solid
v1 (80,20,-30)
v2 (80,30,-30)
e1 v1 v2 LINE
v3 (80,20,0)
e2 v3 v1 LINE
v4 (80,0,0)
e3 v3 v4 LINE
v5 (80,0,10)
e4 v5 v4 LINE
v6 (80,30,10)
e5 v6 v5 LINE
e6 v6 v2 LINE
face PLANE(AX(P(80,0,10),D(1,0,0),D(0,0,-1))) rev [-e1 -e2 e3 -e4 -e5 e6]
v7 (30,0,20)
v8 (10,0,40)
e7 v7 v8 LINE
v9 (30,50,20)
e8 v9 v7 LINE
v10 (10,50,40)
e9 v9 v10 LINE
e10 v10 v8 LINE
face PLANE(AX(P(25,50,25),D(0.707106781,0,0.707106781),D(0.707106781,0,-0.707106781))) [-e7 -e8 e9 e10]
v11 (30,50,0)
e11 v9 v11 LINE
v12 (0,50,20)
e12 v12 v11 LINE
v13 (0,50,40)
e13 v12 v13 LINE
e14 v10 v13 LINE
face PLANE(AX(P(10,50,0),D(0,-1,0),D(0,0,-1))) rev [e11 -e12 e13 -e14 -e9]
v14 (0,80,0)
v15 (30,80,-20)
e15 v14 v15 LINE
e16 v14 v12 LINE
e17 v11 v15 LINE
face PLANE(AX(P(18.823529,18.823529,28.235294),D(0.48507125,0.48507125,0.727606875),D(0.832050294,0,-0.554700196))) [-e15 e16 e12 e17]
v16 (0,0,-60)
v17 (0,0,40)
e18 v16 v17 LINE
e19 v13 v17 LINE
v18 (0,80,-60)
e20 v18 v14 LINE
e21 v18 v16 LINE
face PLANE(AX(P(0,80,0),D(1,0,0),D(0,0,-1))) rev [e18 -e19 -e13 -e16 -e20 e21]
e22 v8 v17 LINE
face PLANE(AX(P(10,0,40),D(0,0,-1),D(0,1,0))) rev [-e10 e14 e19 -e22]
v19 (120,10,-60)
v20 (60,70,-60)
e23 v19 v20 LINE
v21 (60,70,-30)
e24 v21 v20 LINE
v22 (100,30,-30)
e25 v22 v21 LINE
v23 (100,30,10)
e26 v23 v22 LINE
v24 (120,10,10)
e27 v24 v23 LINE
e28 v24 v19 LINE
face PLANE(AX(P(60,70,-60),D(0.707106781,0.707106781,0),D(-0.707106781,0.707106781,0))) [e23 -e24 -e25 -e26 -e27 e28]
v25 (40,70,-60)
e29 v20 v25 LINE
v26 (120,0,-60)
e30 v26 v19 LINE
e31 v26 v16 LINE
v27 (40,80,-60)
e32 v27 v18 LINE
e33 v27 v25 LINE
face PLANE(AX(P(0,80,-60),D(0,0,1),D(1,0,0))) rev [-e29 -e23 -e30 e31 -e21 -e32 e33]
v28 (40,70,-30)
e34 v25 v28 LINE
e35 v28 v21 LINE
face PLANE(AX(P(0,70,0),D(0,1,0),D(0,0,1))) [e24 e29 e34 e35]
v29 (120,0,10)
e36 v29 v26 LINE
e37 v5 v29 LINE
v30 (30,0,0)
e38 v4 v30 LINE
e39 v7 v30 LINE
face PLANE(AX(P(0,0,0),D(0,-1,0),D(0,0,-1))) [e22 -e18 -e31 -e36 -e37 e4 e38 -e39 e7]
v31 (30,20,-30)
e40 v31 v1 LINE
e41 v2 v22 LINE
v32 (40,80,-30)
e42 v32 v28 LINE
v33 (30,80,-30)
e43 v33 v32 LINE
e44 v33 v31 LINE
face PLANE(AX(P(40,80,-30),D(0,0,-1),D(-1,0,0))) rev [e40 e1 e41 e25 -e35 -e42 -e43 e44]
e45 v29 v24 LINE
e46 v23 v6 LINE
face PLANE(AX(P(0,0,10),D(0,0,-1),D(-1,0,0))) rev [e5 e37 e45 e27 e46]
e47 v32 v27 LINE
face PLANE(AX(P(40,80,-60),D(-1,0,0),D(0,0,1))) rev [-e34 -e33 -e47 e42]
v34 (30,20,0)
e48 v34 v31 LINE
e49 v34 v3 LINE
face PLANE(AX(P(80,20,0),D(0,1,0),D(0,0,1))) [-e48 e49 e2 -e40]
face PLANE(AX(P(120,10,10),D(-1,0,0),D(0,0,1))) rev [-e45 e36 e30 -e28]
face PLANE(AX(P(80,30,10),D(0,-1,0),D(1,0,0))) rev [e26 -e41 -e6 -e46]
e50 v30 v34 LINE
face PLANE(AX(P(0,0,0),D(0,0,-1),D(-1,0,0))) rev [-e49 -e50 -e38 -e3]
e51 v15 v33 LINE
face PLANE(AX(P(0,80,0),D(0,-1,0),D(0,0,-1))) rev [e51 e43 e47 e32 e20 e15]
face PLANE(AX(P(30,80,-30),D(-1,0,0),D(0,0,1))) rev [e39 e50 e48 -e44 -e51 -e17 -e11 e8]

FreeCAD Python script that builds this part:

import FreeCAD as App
import Part
import Sketcher
Q = App.Units.Quantity


def add_polygon(sketch, points):
    """Adds a closed chain of lines whose ends are joined by coincident constraints."""
    first, n = sketch.GeometryCount, len(points)
    for a, b in zip(points, points[1:] + points[:1]):
        sketch.addGeometry(Part.LineSegment(App.Vector(*a, 0), App.Vector(*b, 0)), False)
    for i in range(n):
        sketch.addConstraint(Sketcher.Constraint("Coincident", first + i, 2, first + (i + 1) % n, 1))

doc = App.newDocument("Part")
body = doc.addObject("PartDesign::Body", "Body")

sketch1 = body.newObject("Sketcher::SketchObject", "Sketch")
sketch1.AttachmentSupport = (doc.getObject("XZ_Plane"), [""])
sketch1.MapMode = "FlatFace"
add_polygon(sketch1, [(0, -60), (0, 0), (30, -20), (30, -30), (40, -30), (40, -60)])
sketch1.addConstraint([
    Sketcher.Constraint("Vertical", 0),
    Sketcher.Constraint("Vertical", 2),
    Sketcher.Constraint("Horizontal", 3),
    Sketcher.Constraint("Vertical", 4),
    Sketcher.Constraint("Horizontal", 5),
    Sketcher.Constraint("Coincident", 0, 2, -1, 1),
    Sketcher.Constraint("Equal", 3, 2),
    Sketcher.Constraint("DistanceX", 3, 1, 3, 2, 10.0),
    Sketcher.Constraint("DistanceX", 5, 2, 5, 1, 40.0),
    Sketcher.Constraint("DistanceY", 0, 1, 0, 2, 60.0),
    Sketcher.Constraint("DistanceY", 4, 2, 4, 1, 30.0),
])
pad1 = body.newObject("PartDesign::Pad", "Pad")
pad1.Profile = sketch1
pad1.Length = 80
pad1.Reversed = True

sketch2 = body.newObject("Sketcher::SketchObject", "Sketch001")
sketch2.AttachmentSupport = (doc.getObject("YZ_Plane"), [""])
sketch2.MapMode = "FlatFace"
add_polygon(sketch2, [(80, -60), (0, -60), (0, 40), (50, 40), (50, 20), (80, 0)])
sketch2.addConstraint([
    Sketcher.Constraint("Horizontal", 0),
    Sketcher.Constraint("Vertical", 1),
    Sketcher.Constraint("Horizontal", 2),
    Sketcher.Constraint("Vertical", 3),
    Sketcher.Constraint("Vertical", 5),
    Sketcher.Constraint("PointOnObject", 0, 2, -2),
    Sketcher.Constraint("PointOnObject", 4, 2, -1),
    Sketcher.Constraint("DistanceX", 0, 2, 0, 1, 80.0),
    Sketcher.Constraint("DistanceX", 2, 1, 2, 2, 50.0),
    Sketcher.Constraint("DistanceY", 1, 1, 1, 2, 100.0),
    Sketcher.Constraint("DistanceY", 3, 2, 3, 1, 20.0),
    Sketcher.Constraint("DistanceY", 5, 2, 5, 1, 60.0),
])
pad2 = body.newObject("PartDesign::Pad", "Pad001")
pad2.Profile = sketch2
pad2.Length = 10

sketch3 = body.newObject("Sketcher::SketchObject", "Sketch002")
sketch3.Placement = App.Placement(App.Vector(18.823529, 18.823529, 28.235294), App.Rotation(App.Vector(0.874474632, -0.269069118, -0.403603676), App.Vector(0, 0.832050294, -0.554700196), App.Vector(0.48507125, 0.48507125, 0.727606875), "ZXY"))
add_polygon(sketch3, [(-22, 31), (13, 42), (13, 78), (-22, 67)])
sketch3.addConstraint([
    Sketcher.Constraint("Vertical", 1),
    Sketcher.Constraint("Vertical", 3),
    Sketcher.Constraint("Parallel", 0, 2),
    Sketcher.Constraint("DistanceY", 1, 1, 1, 2, 36.055513),
    Sketcher.Constraint("DistanceX", 2, 2, -1, 1, 21.525529),
    Sketcher.Constraint("DistanceY", -1, 1, 3, 2, 30.508511),
    Sketcher.Constraint("DistanceY", 0, 2, 2, 2, 24.961509),
    Sketcher.Constraint("Distance", 0, 36.055513),
])
pocket1 = body.newObject("PartDesign::Pocket", "Pocket")
pocket1.Profile = sketch3
pocket1.Length = 149
pocket1.Reversed = True

sketch4 = body.newObject("Sketcher::SketchObject", "Sketch003")
sketch4.Placement = App.Placement(App.Vector(18.823529, 18.823529, 28.235294), App.Rotation(App.Vector(0.874474632, -0.269069118, -0.403603676), App.Vector(0, 0.832050294, -0.554700196), App.Vector(0.48507125, 0.48507125, 0.727606875), "ZXY"))
add_polygon(sketch4, [(-22, 31), (13, 42), (13, 78), (-22, 67)])
sketch4.addConstraint([
    Sketcher.Constraint("Vertical", 1),
    Sketcher.Constraint("Vertical", 3),
    Sketcher.Constraint("Parallel", 0, 2),
    Sketcher.Constraint("DistanceY", 1, 1, 1, 2, 36.055513),
    Sketcher.Constraint("DistanceX", 2, 2, -1, 1, 21.525529),
    Sketcher.Constraint("DistanceY", -1, 1, 3, 2, 30.508511),
    Sketcher.Constraint("DistanceY", 0, 2, 2, 2, 24.961509),
    Sketcher.Constraint("Distance", 0, 36.055513),
])
pad3 = body.newObject("PartDesign::Pad", "Pad002")
pad3.Profile = sketch4
pad3.Length = 20
pad3.Reversed = True

sketch5 = body.newObject("Sketcher::SketchObject", "Sketch004")
sketch5.AttachmentSupport = (doc.getObject("YZ_Plane"), [""])
sketch5.MapMode = "FlatFace"
add_polygon(sketch5, [(80, -60), (0, -60), (0, 40), (80, 40)])
sketch5.addConstraint([
    Sketcher.Constraint("Horizontal", 0),
    Sketcher.Constraint("Vertical", 1),
    Sketcher.Constraint("Horizontal", 2),
    Sketcher.Constraint("Vertical", 3),
    Sketcher.Constraint("PointOnObject", 0, 2, -2),
    Sketcher.Constraint("DistanceX", 0, 2, 0, 1, 80.0),
    Sketcher.Constraint("DistanceY", 1, 1, 1, 2, 100.0),
    Sketcher.Constraint("DistanceY", 0, 2, -1, 1, 60.0),
])
pocket2 = body.newObject("PartDesign::Pocket", "Pocket001")
pocket2.Profile = sketch5
pocket2.Length = 20

sketch6 = body.newObject("Sketcher::SketchObject", "Sketch005")
sketch6.AttachmentSupport = (doc.getObject("XZ_Plane"), [""])
sketch6.MapMode = "FlatFace"
sketch6.AttachmentOffset = App.Placement(App.Vector(0, 0, -50), App.Rotation())
add_polygon(sketch6, [(10, 13), (0, 20), (0, 40), (10, 40)])
sketch6.addConstraint([
    Sketcher.Constraint("Vertical", 1),
    Sketcher.Constraint("Horizontal", 2),
    Sketcher.Constraint("Vertical", 3),
    Sketcher.Constraint("PointOnObject", 0, 2, -2),
    Sketcher.Constraint("DistanceX", 2, 1, 2, 2, 10.0),
    Sketcher.Constraint("DistanceY", 1, 1, 1, 2, 20.0),
    Sketcher.Constraint("DistanceY", -1, 1, 0, 2, 20.0),
    Sketcher.Constraint("DistanceY", 3, 2, 3, 1, 26.666667),
])
pocket3 = body.newObject("PartDesign::Pocket", "Pocket002")
pocket3.Profile = sketch6
pocket3.Length = 20

sketch7 = body.newObject("Sketcher::SketchObject", "Sketch006")
sketch7.Placement = App.Placement(App.Vector(0, 0, 0), App.Rotation(App.Vector(0.832050294, 0, -0.554700196), App.Vector(0, 0.999999999, 0), App.Vector(0.554700196, 0, 0.832050294), "ZXY"))
add_polygon(sketch7, [(12, 50), (12, 0), (36, 0), (36, 50)])
sketch7.addConstraint([
    Sketcher.Constraint("Vertical", 0),
    Sketcher.Constraint("Horizontal", 1),
    Sketcher.Constraint("Vertical", 2),
    Sketcher.Constraint("Horizontal", 3),
    Sketcher.Constraint("PointOnObject", 0, 2, -1),
    Sketcher.Constraint("DistanceY", 0, 2, 0, 1, 50.0),
    Sketcher.Constraint("DistanceX", 1, 1, 1, 2, 24.037008),
    Sketcher.Constraint("DistanceX", -1, 1, 0, 2, 12.018504),
])
pocket4 = body.newObject("PartDesign::Pocket", "Pocket003")
pocket4.Profile = sketch7
pocket4.Length = 29
pocket4.Reversed = True

sketch8 = body.newObject("Sketcher::SketchObject", "Sketch007")
sketch8.AttachmentSupport = (doc.getObject("YZ_Plane"), [""])
sketch8.MapMode = "FlatFace"
sketch8.AttachmentOffset = App.Placement(App.Vector(0, 0, 10), App.Rotation())
add_polygon(sketch8, [(50, 40), (0, 40), (0, -7), (50, -7)])
sketch8.addConstraint([
    Sketcher.Constraint("Horizontal", 0),
    Sketcher.Constraint("Vertical", 1),
    Sketcher.Constraint("Horizontal", 2),
    Sketcher.Constraint("Vertical", 3),
    Sketcher.Constraint("PointOnObject", 0, 2, -2),
    Sketcher.Constraint("DistanceX", 0, 2, 0, 1, 50.0),
    Sketcher.Constraint("DistanceY", -1, 1, 0, 2, 40.0),
    Sketcher.Constraint("DistanceY", 1, 2, 1, 1, 46.666667),
])
pocket5 = body.newObject("PartDesign::Pocket", "Pocket004")
pocket5.Profile = sketch8
pocket5.Length = 29
pocket5.Reversed = True

sketch9 = body.newObject("Sketcher::SketchObject", "Sketch008")
sketch9.AttachmentSupport = (doc.getObject("XZ_Plane"), [""])
sketch9.MapMode = "FlatFace"
sketch9.AttachmentOffset = App.Placement(App.Vector(0, 0, -70), App.Rotation())
add_polygon(sketch9, [(40, -60), (40, -30), (60, -30), (60, -60)])
sketch9.addConstraint([
    Sketcher.Constraint("Vertical", 0),
    Sketcher.Constraint("Horizontal", 1),
    Sketcher.Constraint("Vertical", 2),
    Sketcher.Constraint("Horizontal", 3),
    Sketcher.Constraint("DistanceX", 1, 1, 1, 2, 20.0),
    Sketcher.Constraint("DistanceY", 0, 1, 0, 2, 30.0),
    Sketcher.Constraint("DistanceX", -1, 1, 0, 2, 40.0),
    Sketcher.Constraint("DistanceY", 0, 2, -1, 1, 30.0),
])
pad4 = body.newObject("PartDesign::Pad", "Pad003")
pad4.Profile = sketch9
pad4.Length = 70

sketch10 = body.newObject("Sketcher::SketchObject", "Sketch009")
sketch10.AttachmentSupport = (doc.getObject("XY_Plane"), [""])
sketch10.MapMode = "FlatFace"
sketch10.AttachmentOffset = App.Placement(App.Vector(0, 0, -60), App.Rotation())
add_polygon(sketch10, [(80, 10), (80, 0), (60, 0), (60, 70), (100, 10)])
sketch10.addConstraint([
    Sketcher.Constraint("Vertical", 0),
    Sketcher.Constraint("Horizontal", 1),
    Sketcher.Constraint("Vertical", 2),
    Sketcher.Constraint("Horizontal", 4),
    Sketcher.Constraint("PointOnObject", 0, 2, -1),
    Sketcher.Constraint("Equal", 1, 4),
    Sketcher.Constraint("DistanceX", 1, 2, 1, 1, 20.0),
    Sketcher.Constraint("DistanceY", 0, 2, 0, 1, 10.0),
    Sketcher.Constraint("DistanceY", 2, 1, 2, 2, 70.0),
    Sketcher.Constraint("DistanceX", -1, 1, 0, 2, 80.0),
])
pad5 = body.newObject("PartDesign::Pad", "Pad004")
pad5.Profile = sketch10
pad5.Length = 30

sketch11 = body.newObject("Sketcher::SketchObject", "Sketch010")
sketch11.AttachmentSupport = (doc.getObject("XY_Plane"), [""])
sketch11.MapMode = "FlatFace"
sketch11.AttachmentOffset = App.Placement(App.Vector(0, 0, -30), App.Rotation())
add_polygon(sketch11, [(60, 70), (60, -4), (103, -4), (103, 70)])
sketch11.addConstraint([
    Sketcher.Constraint("Vertical", 0),
    Sketcher.Constraint("Horizontal", 1),
    Sketcher.Constraint("Vertical", 2),
    Sketcher.Constraint("Horizontal", 3),
    Sketcher.Constraint("DistanceX", -1, 1, 0, 2, 60.0),
    Sketcher.Constraint("DistanceY", -1, 1, 2, 2, 70.0),
    Sketcher.Constraint("DistanceX", 1, 1, 1, 2, 43.205783),
    Sketcher.Constraint("DistanceY", 0, 2, 0, 1, 74.052807),
])
pocket6 = body.newObject("PartDesign::Pocket", "Pocket005")
pocket6.Profile = sketch11
pocket6.Length = 30

sketch12 = body.newObject("Sketcher::SketchObject", "Sketch011")
sketch12.AttachmentSupport = (doc.getObject("XY_Plane"), [""])
sketch12.MapMode = "FlatFace"
sketch12.AttachmentOffset = App.Placement(App.Vector(0, 0, -30), App.Rotation())
add_polygon(sketch12, [(30, 20), (30, 0), (60, 0), (60, 20)])
sketch12.addConstraint([
    Sketcher.Constraint("Vertical", 0),
    Sketcher.Constraint("Horizontal", 1),
    Sketcher.Constraint("Vertical", 2),
    Sketcher.Constraint("Horizontal", 3),
    Sketcher.Constraint("PointOnObject", 0, 2, -1),
    Sketcher.Constraint("DistanceX", 1, 1, 1, 2, 30.0),
    Sketcher.Constraint("DistanceY", 0, 2, 0, 1, 20.0),
    Sketcher.Constraint("DistanceX", -1, 1, 0, 2, 30.0),
])
pocket7 = body.newObject("PartDesign::Pocket", "Pocket006")
pocket7.Profile = sketch12
pocket7.Length = 30

sketch13 = body.newObject("Sketcher::SketchObject", "Sketch012")
sketch13.AttachmentSupport = (doc.getObject("XY_Plane"), [""])
sketch13.MapMode = "FlatFace"
sketch13.AttachmentOffset = App.Placement(App.Vector(0, 0, -30), App.Rotation())
add_polygon(sketch13, [(100, 30), (60, 70), (60, 20), (80, 20), (80, 30)])
sketch13.addConstraint([
    Sketcher.Constraint("Vertical", 1),
    Sketcher.Constraint("Horizontal", 2),
    Sketcher.Constraint("Vertical", 3),
    Sketcher.Constraint("Horizontal", 4),
    Sketcher.Constraint("Equal", 2, 4),
    Sketcher.Constraint("DistanceX", 2, 1, 2, 2, 20.0),
    Sketcher.Constraint("DistanceY", 1, 2, 1, 1, 50.0),
    Sketcher.Constraint("DistanceY", 3, 1, 3, 2, 10.0),
    Sketcher.Constraint("DistanceX", -1, 1, 0, 2, 60.0),
    Sketcher.Constraint("DistanceY", -1, 1, 0, 2, 70.0),
])
pad6 = body.newObject("PartDesign::Pad", "Pad005")
pad6.Profile = sketch13
pad6.Length = 30
pad6.Reversed = True

sketch14 = body.newObject("Sketcher::SketchObject", "Sketch013")
sketch14.AttachmentSupport = (doc.getObject("XY_Plane"), [""])
sketch14.MapMode = "FlatFace"
sketch14.AttachmentOffset = App.Placement(App.Vector(0, 0, -30), App.Rotation())
add_polygon(sketch14, [(120, 10), (100, 30), (80, 30), (80, 0), (120, 0)])
sketch14.addConstraint([
    Sketcher.Constraint("Horizontal", 1),
    Sketcher.Constraint("Vertical", 2),
    Sketcher.Constraint("Horizontal", 3),
    Sketcher.Constraint("Vertical", 4),
    Sketcher.Constraint("PointOnObject", 2, 2, -1),
    Sketcher.Constraint("DistanceX", 1, 2, 1, 1, 20.0),
    Sketcher.Constraint("DistanceX", 3, 1, 3, 2, 40.0),
    Sketcher.Constraint("DistanceY", 2, 2, 2, 1, 30.0),
    Sketcher.Constraint("DistanceY", 4, 1, 4, 2, 10.0),
    Sketcher.Constraint("DistanceX", -1, 1, 0, 2, 100.0),
])
pad7 = body.newObject("PartDesign::Pad", "Pad006")
pad7.Profile = sketch14
pad7.Type = "TwoLengths"
pad7.Length = 40
pad7.Length2 = 30

sketch15 = body.newObject("Sketcher::SketchObject", "Sketch014")
sketch15.AttachmentSupport = (doc.getObject("XY_Plane"), [""])
sketch15.MapMode = "FlatFace"
sketch15.AttachmentOffset = App.Placement(App.Vector(0, 0, -60), App.Rotation())
add_polygon(sketch15, [(80, 20), (80, 0), (30, 0), (30, 20)])
sketch15.addConstraint([
    Sketcher.Constraint("Vertical", 0),
    Sketcher.Constraint("Horizontal", 1),
    Sketcher.Constraint("Vertical", 2),
    Sketcher.Constraint("Horizontal", 3),
    Sketcher.Constraint("PointOnObject", 0, 2, -1),
    Sketcher.Constraint("DistanceX", 1, 2, 1, 1, 50.0),
    Sketcher.Constraint("DistanceY", 0, 2, 0, 1, 20.0),
    Sketcher.Constraint("DistanceX", -1, 1, 0, 2, 80.0),
])
pad8 = body.newObject("PartDesign::Pad", "Pad007")
pad8.Profile = sketch15
pad8.Length = 60

sketch16 = body.newObject("Sketcher::SketchObject", "Sketch015")
sketch16.AttachmentSupport = (doc.getObject("XZ_Plane"), [""])
sketch16.MapMode = "FlatFace"
add_polygon(sketch16, [(10, -7), (30, -20), (30, 20), (10, 40)])
sketch16.addConstraint([
    Sketcher.Constraint("Vertical", 1),
    Sketcher.Constraint("Vertical", 3),
    Sketcher.Constraint("DistanceY", 1, 1, 1, 2, 40.0),
    Sketcher.Constraint("Angle", 2, Q("135 deg")),
    Sketcher.Constraint("DistanceX", -1, 1, 0, 2, 30.0),
    Sketcher.Constraint("DistanceY", 0, 2, -1, 1, 20.0),
    Sketcher.Constraint("DistanceX", -1, 1, 2, 2, 10.0),
    Sketcher.Constraint("Distance", 0, 24.037009),
])
pad9 = body.newObject("PartDesign::Pad", "Pad008")
pad9.Profile = sketch16
pad9.Length = 50
pad9.Reversed = True

sketch17 = body.newObject("Sketcher::SketchObject", "Sketch016")
sketch17.AttachmentSupport = (doc.getObject("YZ_Plane"), [""])
sketch17.MapMode = "FlatFace"
sketch17.AttachmentOffset = App.Placement(App.Vector(0, 0, 30), App.Rotation())
add_polygon(sketch17, [(50, 0), (50, -20), (80, -20)])
sketch17.addConstraint([
    Sketcher.Constraint("Vertical", 0),
    Sketcher.Constraint("Horizontal", 1),
    Sketcher.Constraint("PointOnObject", 2, 2, -1),
    Sketcher.Constraint("DistanceX", 1, 1, 1, 2, 30.0),
    Sketcher.Constraint("DistanceY", 0, 2, 0, 1, 20.0),
    Sketcher.Constraint("DistanceX", -1, 1, 0, 2, 50.0),
])
pad10 = body.newObject("PartDesign::Pad", "Pad009")
pad10.Profile = sketch17
pad10.Length = 20
pad10.Reversed = True

doc.recompute()
